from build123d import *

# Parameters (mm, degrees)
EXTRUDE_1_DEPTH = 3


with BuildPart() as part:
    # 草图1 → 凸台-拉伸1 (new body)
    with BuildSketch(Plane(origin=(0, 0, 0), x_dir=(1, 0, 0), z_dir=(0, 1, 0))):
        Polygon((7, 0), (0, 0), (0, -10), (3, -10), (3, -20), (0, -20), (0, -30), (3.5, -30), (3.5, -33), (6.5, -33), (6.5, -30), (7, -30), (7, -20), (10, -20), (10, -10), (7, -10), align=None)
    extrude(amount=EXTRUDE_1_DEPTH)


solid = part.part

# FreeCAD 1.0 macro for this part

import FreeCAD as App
import Part
import Sketcher
from FreeCAD import Vector


def add_polygon(sketch, points):
    """Adds a closed chain of lines whose ends are joined by coincident constraints."""
    first, n = sketch.GeometryCount, len(points)
    for a, b in zip(points, points[1:] + points[:1]):
        sketch.addGeometry(Part.LineSegment(App.Vector(*a, 0), App.Vector(*b, 0)), False)
    for i in range(n):
        sketch.addConstraint(Sketcher.Constraint("Coincident", first + i, 2, first + (i + 1) % n, 1))

doc = App.newDocument("Part")
body = doc.addObject("PartDesign::Body", "Body")

# Sketch on XZ plane
sketch1 = doc.addObject("Sketcher::SketchObject", "Sketch")
body.addObject(sketch1)
sketch1.AttachmentSupport = (doc.XZ_Plane, [""])
sketch1.MapMode = "FlatFace"
add_polygon(sketch1, [(7, 0), (0, 0), (0, 10), (3, 10), (3, 20), (0, 20), (0, 30), (3.5, 30), (3.5, 33), (6.5, 33), (6.5, 30), (7, 30), (7, 20), (10, 20), (10, 10), (7, 10)])  # lines 0-15
sketch1.addConstraint([
    Sketcher.Constraint("Horizontal", 0),
    Sketcher.Constraint("Vertical", 1),
    Sketcher.Constraint("Horizontal", 2),
    Sketcher.Constraint("Vertical", 3),
    Sketcher.Constraint("Horizontal", 4),
    Sketcher.Constraint("Vertical", 5),
    Sketcher.Constraint("Horizontal", 6),
    Sketcher.Constraint("Vertical", 7),
    Sketcher.Constraint("Horizontal", 8),
    Sketcher.Constraint("Vertical", 9),
    Sketcher.Constraint("Horizontal", 10),
    Sketcher.Constraint("Vertical", 11),
    Sketcher.Constraint("Horizontal", 12),
    Sketcher.Constraint("Vertical", 13),
    Sketcher.Constraint("Horizontal", 14),
    Sketcher.Constraint("Vertical", 15),
    Sketcher.Constraint("Coincident", 0, 2, -1, 1),
    Sketcher.Constraint("PointOnObject", 4, 2, -2),
    Sketcher.Constraint("Horizontal", 6, 2, 9, 2),
    Sketcher.Constraint("Horizontal", 4, 2, 11, 2),
    Sketcher.Constraint("Horizontal", 2, 2, 13, 2),
    Sketcher.Constraint("Vertical", 11, 2, 14, 2),
    Sketcher.Constraint("Equal", 4, 8),
    Sketcher.Constraint("Equal", 8, 12),
    Sketcher.Constraint("Equal", 1, 3),
    Sketcher.Constraint("Equal", 3, 5),
    Sketcher.Constraint("Equal", 14, 7),
    Sketcher.Constraint("DistanceX", 0, 2, 0, 1, 7.0),
    Sketcher.Constraint("DistanceX", 2, 1, 2, 2, 3.0),
    Sketcher.Constraint("DistanceY", 1, 1, 1, 2, 10.0),
    Sketcher.Constraint("DistanceX", 6, 1, 6, 2, 3.5),
])
pad1 = doc.addObject("PartDesign::Pad", "Pad")
body.addObject(pad1)
pad1.Profile = sketch1
pad1.Length = 3
pad1.Reversed = True

doc.recompute()
